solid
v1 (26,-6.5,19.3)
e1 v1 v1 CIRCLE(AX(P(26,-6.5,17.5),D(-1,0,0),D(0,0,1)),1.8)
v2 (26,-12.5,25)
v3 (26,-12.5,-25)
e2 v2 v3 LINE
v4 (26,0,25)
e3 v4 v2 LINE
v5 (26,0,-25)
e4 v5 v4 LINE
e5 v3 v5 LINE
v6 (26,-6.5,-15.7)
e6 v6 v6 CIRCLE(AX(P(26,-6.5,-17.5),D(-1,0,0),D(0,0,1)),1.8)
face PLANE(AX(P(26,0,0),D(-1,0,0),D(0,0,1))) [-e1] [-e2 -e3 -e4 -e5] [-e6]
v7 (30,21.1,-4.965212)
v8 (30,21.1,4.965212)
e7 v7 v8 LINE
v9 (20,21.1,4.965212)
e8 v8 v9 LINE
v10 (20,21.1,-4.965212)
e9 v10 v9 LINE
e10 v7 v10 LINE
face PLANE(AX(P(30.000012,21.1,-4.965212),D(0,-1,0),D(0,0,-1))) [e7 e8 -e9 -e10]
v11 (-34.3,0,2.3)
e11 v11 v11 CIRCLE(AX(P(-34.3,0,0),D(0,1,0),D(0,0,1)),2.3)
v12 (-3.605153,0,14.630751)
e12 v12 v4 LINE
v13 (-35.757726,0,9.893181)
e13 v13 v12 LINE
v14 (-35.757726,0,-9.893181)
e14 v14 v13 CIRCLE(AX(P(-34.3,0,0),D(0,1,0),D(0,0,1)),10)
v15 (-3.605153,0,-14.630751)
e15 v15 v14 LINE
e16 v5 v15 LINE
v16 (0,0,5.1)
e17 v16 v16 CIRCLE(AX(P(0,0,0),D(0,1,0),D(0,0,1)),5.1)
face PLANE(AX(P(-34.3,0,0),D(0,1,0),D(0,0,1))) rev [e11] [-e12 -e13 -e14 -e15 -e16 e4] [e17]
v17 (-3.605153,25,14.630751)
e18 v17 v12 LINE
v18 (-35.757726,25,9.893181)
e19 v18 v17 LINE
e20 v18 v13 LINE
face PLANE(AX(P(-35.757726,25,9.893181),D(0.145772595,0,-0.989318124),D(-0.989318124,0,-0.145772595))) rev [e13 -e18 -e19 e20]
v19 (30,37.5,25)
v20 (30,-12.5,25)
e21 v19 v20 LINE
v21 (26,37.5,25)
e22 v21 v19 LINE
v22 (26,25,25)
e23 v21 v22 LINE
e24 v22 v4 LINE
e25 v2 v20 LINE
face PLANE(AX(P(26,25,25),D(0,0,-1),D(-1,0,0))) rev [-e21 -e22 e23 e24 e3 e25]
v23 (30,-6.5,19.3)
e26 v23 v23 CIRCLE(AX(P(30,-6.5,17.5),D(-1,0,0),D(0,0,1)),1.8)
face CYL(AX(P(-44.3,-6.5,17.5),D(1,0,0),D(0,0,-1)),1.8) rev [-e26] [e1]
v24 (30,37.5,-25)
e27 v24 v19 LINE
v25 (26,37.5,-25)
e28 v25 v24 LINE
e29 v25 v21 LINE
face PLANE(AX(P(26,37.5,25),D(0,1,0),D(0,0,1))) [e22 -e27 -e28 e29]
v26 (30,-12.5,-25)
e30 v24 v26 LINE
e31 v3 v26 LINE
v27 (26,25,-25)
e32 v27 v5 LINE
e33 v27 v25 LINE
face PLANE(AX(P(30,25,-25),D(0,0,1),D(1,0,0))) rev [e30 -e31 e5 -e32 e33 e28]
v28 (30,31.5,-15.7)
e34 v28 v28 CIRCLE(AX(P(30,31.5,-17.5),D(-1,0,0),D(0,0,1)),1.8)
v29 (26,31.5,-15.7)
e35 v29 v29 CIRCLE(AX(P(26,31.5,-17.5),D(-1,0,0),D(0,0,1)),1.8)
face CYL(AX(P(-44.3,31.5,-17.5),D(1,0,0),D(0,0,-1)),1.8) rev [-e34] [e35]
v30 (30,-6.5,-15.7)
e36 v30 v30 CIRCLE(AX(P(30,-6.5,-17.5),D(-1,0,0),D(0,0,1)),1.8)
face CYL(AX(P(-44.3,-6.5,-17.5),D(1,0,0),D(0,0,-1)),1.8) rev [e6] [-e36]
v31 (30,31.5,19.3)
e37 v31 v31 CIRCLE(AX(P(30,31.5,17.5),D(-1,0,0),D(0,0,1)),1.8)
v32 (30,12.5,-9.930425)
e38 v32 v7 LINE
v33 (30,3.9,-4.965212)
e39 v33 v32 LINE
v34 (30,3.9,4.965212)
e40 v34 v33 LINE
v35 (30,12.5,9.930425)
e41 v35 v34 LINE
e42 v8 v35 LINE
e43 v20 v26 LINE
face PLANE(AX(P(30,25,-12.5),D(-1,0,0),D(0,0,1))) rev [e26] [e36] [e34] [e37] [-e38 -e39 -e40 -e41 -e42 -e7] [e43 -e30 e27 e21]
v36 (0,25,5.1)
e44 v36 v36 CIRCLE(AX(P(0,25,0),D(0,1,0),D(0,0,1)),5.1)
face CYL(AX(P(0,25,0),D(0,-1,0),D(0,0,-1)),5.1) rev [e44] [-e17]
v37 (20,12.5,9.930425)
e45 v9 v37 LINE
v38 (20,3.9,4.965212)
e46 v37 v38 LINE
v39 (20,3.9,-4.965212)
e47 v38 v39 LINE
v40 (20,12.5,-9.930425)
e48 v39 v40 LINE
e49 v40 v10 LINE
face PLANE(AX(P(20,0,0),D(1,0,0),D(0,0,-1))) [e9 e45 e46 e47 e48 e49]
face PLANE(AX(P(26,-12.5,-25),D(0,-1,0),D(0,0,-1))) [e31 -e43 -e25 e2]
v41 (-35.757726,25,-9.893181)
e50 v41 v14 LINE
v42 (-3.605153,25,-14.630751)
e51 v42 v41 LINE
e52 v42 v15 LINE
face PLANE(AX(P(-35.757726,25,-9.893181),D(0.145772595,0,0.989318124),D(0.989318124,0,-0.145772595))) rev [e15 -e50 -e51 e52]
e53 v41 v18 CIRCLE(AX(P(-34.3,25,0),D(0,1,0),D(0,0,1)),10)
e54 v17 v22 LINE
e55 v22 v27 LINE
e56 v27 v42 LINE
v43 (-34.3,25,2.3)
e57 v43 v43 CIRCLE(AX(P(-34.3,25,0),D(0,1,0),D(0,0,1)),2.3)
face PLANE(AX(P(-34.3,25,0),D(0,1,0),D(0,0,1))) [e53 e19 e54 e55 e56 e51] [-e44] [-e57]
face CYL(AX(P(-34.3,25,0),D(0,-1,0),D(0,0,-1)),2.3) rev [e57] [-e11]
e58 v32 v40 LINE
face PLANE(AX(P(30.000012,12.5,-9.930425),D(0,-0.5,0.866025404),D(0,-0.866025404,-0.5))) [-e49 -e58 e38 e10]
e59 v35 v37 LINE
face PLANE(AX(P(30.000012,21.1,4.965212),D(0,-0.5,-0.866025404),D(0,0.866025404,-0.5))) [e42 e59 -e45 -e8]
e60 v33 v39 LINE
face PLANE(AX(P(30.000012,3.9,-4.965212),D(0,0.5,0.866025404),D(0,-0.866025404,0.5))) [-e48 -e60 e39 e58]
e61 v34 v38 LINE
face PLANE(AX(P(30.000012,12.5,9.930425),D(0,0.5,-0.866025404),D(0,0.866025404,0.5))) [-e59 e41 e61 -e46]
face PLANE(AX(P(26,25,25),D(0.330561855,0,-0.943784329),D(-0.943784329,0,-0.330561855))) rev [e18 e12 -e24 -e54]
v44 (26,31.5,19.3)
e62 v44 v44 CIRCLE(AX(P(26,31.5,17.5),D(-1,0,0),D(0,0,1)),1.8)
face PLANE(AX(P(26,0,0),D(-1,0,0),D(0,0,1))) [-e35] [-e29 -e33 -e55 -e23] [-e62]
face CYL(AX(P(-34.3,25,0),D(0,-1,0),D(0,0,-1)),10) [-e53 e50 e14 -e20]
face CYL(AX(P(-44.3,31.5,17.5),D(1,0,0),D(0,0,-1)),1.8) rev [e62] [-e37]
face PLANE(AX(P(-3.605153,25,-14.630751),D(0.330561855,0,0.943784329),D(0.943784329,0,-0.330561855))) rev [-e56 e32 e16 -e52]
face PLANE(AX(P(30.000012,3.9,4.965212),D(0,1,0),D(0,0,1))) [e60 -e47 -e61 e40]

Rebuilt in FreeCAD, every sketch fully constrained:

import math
import FreeCAD as App
import Part
import Sketcher

V = App.Vector
Q = App.Units.Quantity


def add_polygon(sketch, points):
    """Adds a closed chain of lines whose ends are joined by coincident constraints."""
    first, n = sketch.GeometryCount, len(points)
    for a, b in zip(points, points[1:] + points[:1]):
        sketch.addGeometry(Part.LineSegment(App.Vector(*a, 0), App.Vector(*b, 0)), False)
    for i in range(n):
        sketch.addConstraint(Sketcher.Constraint("Coincident", first + i, 2, first + (i + 1) % n, 1))

doc = App.newDocument("Part")
body = doc.addObject("PartDesign::Body", "Body")

sketch1 = body.newObject("Sketcher::SketchObject", "Sketch")
sketch1.AttachmentSupport = (doc.getObject("XZ_Plane"), [""])
sketch1.MapMode = "FlatFace"
sketch1.addGeometry(Part.LineSegment(V(26, 25, 0), V(30, 25, 0)), False)
sketch1.addGeometry(Part.LineSegment(V(30, 25, 0), V(30, -25, 0)), False)
sketch1.addGeometry(Part.LineSegment(V(30, -25, 0), V(26, -25, 0)), False)
sketch1.addGeometry(Part.LineSegment(V(26, -25, 0), V(-3.6, -14.6, 0)), False)
sketch1.addGeometry(Part.LineSegment(V(-3.6, -14.6, 0), V(-35.8, -9.9, 0)), False)
sketch1.addGeometry(Part.ArcOfCircle(Part.Circle(V(-34.3, 0, 0), V(0, 0, 1), 10), math.radians(98), math.radians(262)), False)
sketch1.addGeometry(Part.LineSegment(V(-35.8, 9.9, 0), V(-3.6, 14.6, 0)), False)
sketch1.addGeometry(Part.LineSegment(V(-3.6, 14.6, 0), V(26, 25, 0)), False)
sketch1.addGeometry(Part.Circle(V(0, 0, 0), V(0, 0, 1), 5.1), False)
sketch1.addGeometry(Part.Circle(V(-34.3, 0, 0), V(0, 0, 1), 2.3), False)
sketch1.addConstraint(Sketcher.Constraint("Coincident", 0, 2, 1, 1))
sketch1.addConstraint(Sketcher.Constraint("Coincident", 1, 2, 2, 1))
sketch1.addConstraint(Sketcher.Constraint("Coincident", 2, 2, 3, 1))
sketch1.addConstraint(Sketcher.Constraint("Coincident", 3, 2, 4, 1))
sketch1.addConstraint(Sketcher.Constraint("Tangent", 4, 2, 5, 2))
sketch1.addConstraint(Sketcher.Constraint("Tangent", 5, 1, 6, 1))
sketch1.addConstraint(Sketcher.Constraint("Coincident", 6, 2, 7, 1))
sketch1.addConstraint(Sketcher.Constraint("Coincident", 7, 2, 0, 1))
sketch1.addConstraint(Sketcher.Constraint("Horizontal", 0))
sketch1.addConstraint(Sketcher.Constraint("Vertical", 1))
sketch1.addConstraint(Sketcher.Constraint("Horizontal", 2))
sketch1.addConstraint(Sketcher.Constraint("Coincident", 8, 3, -1, 1))
sketch1.addConstraint(Sketcher.Constraint("Coincident", 9, 3, 5, 3))
sketch1.addConstraint(Sketcher.Constraint("Symmetric", 4, 2, 5, 1, -1))
sketch1.addConstraint(Sketcher.Constraint("Symmetric", 2, 2, 7, 2, -1))
sketch1.addConstraint(Sketcher.Constraint("Vertical", 3, 2, 6, 2))
sketch1.addConstraint(Sketcher.Constraint("Radius", 5, 10.0))
sketch1.addConstraint(Sketcher.Constraint("Diameter", 8, 10.2))
sketch1.addConstraint(Sketcher.Constraint("Diameter", 9, 4.6))
sketch1.addConstraint(Sketcher.Constraint("DistanceX", 0, 1, 0, 2, 4.0))
sketch1.addConstraint(Sketcher.Constraint("DistanceY", 1, 2, 1, 1, 50.0))
sketch1.addConstraint(Sketcher.Constraint("DistanceX", -1, 1, 0, 2, 30.0))
sketch1.addConstraint(Sketcher.Constraint("DistanceX", 5, 3, -1, 1, 34.3))
sketch1.addConstraint(Sketcher.Constraint("Distance", 4, 32.499731))
sketch1.addConstraint(Sketcher.Constraint("DistanceY", 3, 2, -1, 1, 14.630751))
pad1 = body.newObject("PartDesign::Pad", "Pad")
pad1.Profile = sketch1
pad1.Length = 25
pad1.Reversed = True

sketch2 = body.newObject("Sketcher::SketchObject", "Sketch001")
sketch2.AttachmentSupport = (doc.getObject("YZ_Plane"), [""])
sketch2.MapMode = "FlatFace"
sketch2.AttachmentOffset = App.Placement(V(0, 0, 30), App.Rotation())
add_polygon(sketch2, [(38, 25), (25, 25), (25, -25), (38, -25)])
add_polygon(sketch2, [(0, 25), (-12, 25), (-12, -25), (0, -25)])
sketch2.addConstraint(Sketcher.Constraint("Horizontal", 0))
sketch2.addConstraint(Sketcher.Constraint("Vertical", 1))
sketch2.addConstraint(Sketcher.Constraint("Horizontal", 2))
sketch2.addConstraint(Sketcher.Constraint("Vertical", 3))
sketch2.addConstraint(Sketcher.Constraint("Horizontal", 4))
sketch2.addConstraint(Sketcher.Constraint("Vertical", 5))
sketch2.addConstraint(Sketcher.Constraint("Horizontal", 6))
sketch2.addConstraint(Sketcher.Constraint("Vertical", 7))
sketch2.addConstraint(Sketcher.Constraint("Symmetric", 6, 2, 7, 2, -1, 1))
sketch2.addConstraint(Sketcher.Constraint("Horizontal", 3, 2, 4, 2))
sketch2.addConstraint(Sketcher.Constraint("Horizontal", 2, 2, 5, 2))
sketch2.addConstraint(Sketcher.Constraint("Equal", 2, 4))
sketch2.addConstraint(Sketcher.Constraint("DistanceY", 1, 2, 1, 1, 50.0))
sketch2.addConstraint(Sketcher.Constraint("DistanceX", 0, 2, 0, 1, 12.5))
sketch2.addConstraint(Sketcher.Constraint("DistanceX", -1, 1, 0, 2, 25.0))
pad2 = body.newObject("PartDesign::Pad", "Pad001")
pad2.Profile = sketch2
pad2.Length = 4
pad2.Reversed = True

sketch3 = body.newObject("Sketcher::SketchObject", "Sketch002")
sketch3.AttachmentSupport = (doc.getObject("YZ_Plane"), [""])
sketch3.MapMode = "FlatFace"
sketch3.AttachmentOffset = App.Placement(V(0, 0, 30), App.Rotation())
sketch3.addGeometry(Part.Circle(V(31.5, 17.5, 0), V(0, 0, 1), 1.8), False)
sketch3.addGeometry(Part.Circle(V(31.5, -17.5, 0), V(0, 0, 1), 1.8), False)
sketch3.addGeometry(Part.Circle(V(-6.5, -17.5, 0), V(0, 0, 1), 1.8), False)
sketch3.addGeometry(Part.Circle(V(-6.5, 17.5, 0), V(0, 0, 1), 1.8), False)
sketch3.addConstraint(Sketcher.Constraint("Equal", 0, 1))
sketch3.addConstraint(Sketcher.Constraint("Equal", 1, 2))
sketch3.addConstraint(Sketcher.Constraint("Equal", 2, 3))
sketch3.addConstraint(Sketcher.Constraint("Symmetric", 0, 3, 1, 3, -1))
sketch3.addConstraint(Sketcher.Constraint("Symmetric", 2, 3, 3, 3, -1))
sketch3.addConstraint(Sketcher.Constraint("Horizontal", 1, 3, 2, 3))
sketch3.addConstraint(Sketcher.Constraint("Diameter", 0, 3.6))
sketch3.addConstraint(Sketcher.Constraint("DistanceY", 1, 3, 0, 3, 35.0))
sketch3.addConstraint(Sketcher.Constraint("DistanceX", 2, 3, 1, 3, 38.0))
sketch3.addConstraint(Sketcher.Constraint("DistanceX", -1, 1, 0, 3, 31.5))
pocket1 = body.newObject("PartDesign::Pocket", "Pocket")
pocket1.Profile = sketch3
pocket1.Type = "ThroughAll"
pocket1.Midplane = True

sketch4 = body.newObject("Sketcher::SketchObject", "Sketch003")
sketch4.AttachmentSupport = (doc.getObject("YZ_Plane"), [""])
sketch4.MapMode = "FlatFace"
sketch4.AttachmentOffset = App.Placement(V(0, 0, 30), App.Rotation())
add_polygon(sketch4, [(21, 5), (12, 10), (4, 5), (4, -5), (12, -10), (21, -5)])
sketch4.addConstraint(Sketcher.Constraint("Vertical", 2))
sketch4.addConstraint(Sketcher.Constraint("Vertical", 5))
sketch4.addConstraint(Sketcher.Constraint("Symmetric", 0, 2, 3, 2, -1))
sketch4.addConstraint(Sketcher.Constraint("Parallel", 0, 3))
sketch4.addConstraint(Sketcher.Constraint("Parallel", 1, 4))
sketch4.addConstraint(Sketcher.Constraint("Horizontal", 2, 2, 4, 2))
sketch4.addConstraint(Sketcher.Constraint("Horizontal", 1, 2, 5, 2))
sketch4.addConstraint(Sketcher.Constraint("Angle", 0, Q("150 deg")))
sketch4.addConstraint(Sketcher.Constraint("DistanceX", -1, 1, 0, 2, 12.5))
sketch4.addConstraint(Sketcher.Constraint("DistanceX", -1, 1, 1, 2, 3.9))
sketch4.addConstraint(Sketcher.Constraint("DistanceY", 2, 2, 2, 1, 9.930425))
pocket2 = body.newObject("PartDesign::Pocket", "Pocket001")
pocket2.Profile = sketch4
pocket2.Type = "TwoLengths"
pocket2.Length = 87.900748
pocket2.Length2 = 10
pocket2.Reversed = True

doc.recompute()
